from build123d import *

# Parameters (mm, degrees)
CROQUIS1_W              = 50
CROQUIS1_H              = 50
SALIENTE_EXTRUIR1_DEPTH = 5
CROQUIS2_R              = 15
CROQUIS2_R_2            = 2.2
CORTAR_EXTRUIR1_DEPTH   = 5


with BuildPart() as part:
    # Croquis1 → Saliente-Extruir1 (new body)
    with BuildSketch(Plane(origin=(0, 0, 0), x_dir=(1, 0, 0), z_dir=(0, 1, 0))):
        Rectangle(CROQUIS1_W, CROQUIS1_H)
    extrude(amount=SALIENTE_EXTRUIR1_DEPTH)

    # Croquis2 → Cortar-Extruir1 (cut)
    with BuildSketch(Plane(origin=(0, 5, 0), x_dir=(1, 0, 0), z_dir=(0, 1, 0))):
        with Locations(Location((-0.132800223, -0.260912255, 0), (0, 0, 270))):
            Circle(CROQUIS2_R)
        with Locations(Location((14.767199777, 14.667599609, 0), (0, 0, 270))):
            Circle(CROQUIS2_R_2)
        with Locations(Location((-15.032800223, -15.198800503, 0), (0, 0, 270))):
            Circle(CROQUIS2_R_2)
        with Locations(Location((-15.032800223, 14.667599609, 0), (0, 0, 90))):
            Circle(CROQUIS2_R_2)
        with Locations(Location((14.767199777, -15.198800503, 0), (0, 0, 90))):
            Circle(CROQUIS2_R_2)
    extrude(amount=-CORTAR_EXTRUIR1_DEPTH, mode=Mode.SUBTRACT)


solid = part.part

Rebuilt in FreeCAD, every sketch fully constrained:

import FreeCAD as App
import Part
import Sketcher
from FreeCAD import Vector

doc = App.newDocument("Part")
body = doc.addObject("PartDesign::Body", "Body")

sketch1 = body.newObject("Sketcher::SketchObject", "Sketch")
sketch1.AttachmentSupport = (doc.getObject("XZ_Plane"), [""])
sketch1.MapMode = "FlatFace"
sketch1.addGeometry([
    Part.LineSegment(Vector(-25, -25, 0), Vector(-25, 25, 0)),
    Part.LineSegment(Vector(-25, 25, 0), Vector(25, 25, 0)),
    Part.LineSegment(Vector(25, 25, 0), Vector(25, -25, 0)),
    Part.LineSegment(Vector(25, -25, 0), Vector(-25, -25, 0)),
], False)
sketch1.addConstraint([
    Sketcher.Constraint("Coincident", 0, 2, 1, 1),
    Sketcher.Constraint("Coincident", 1, 2, 2, 1),
    Sketcher.Constraint("Coincident", 2, 2, 3, 1),
    Sketcher.Constraint("Coincident", 3, 2, 0, 1),
    Sketcher.Constraint("Vertical", 0),
    Sketcher.Constraint("Horizontal", 1),
    Sketcher.Constraint("Vertical", 2),
    Sketcher.Constraint("Horizontal", 3),
    Sketcher.Constraint("Symmetric", 0, 2, 2, 2, -1, 1),
    Sketcher.Constraint("Equal", 3, 0),
    Sketcher.Constraint("DistanceX", 1, 1, 1, 2, 50.0),
])
pad1 = body.newObject("PartDesign::Pad", "Pad")
pad1.Profile = sketch1
pad1.Length = 5
pad1.Reversed = True

sketch2 = body.newObject("Sketcher::SketchObject", "Sketch001")
sketch2.AttachmentSupport = (doc.getObject("XZ_Plane"), [""])
sketch2.MapMode = "FlatFace"
sketch2.AttachmentOffset = App.Placement(Vector(0, 0, -5), App.Rotation())
sketch2.addGeometry([
    Part.Circle(Vector(-0.1, 0.3, 0), Vector(0, 0, 1), 15),
    Part.Circle(Vector(14.8, -14.7, 0), Vector(0, 0, 1), 2.2),
    Part.Circle(Vector(-15, 15.2, 0), Vector(0, 0, 1), 2.2),
    Part.Circle(Vector(-15, -14.7, 0), Vector(0, 0, 1), 2.2),
    Part.Circle(Vector(14.8, 15.2, 0), Vector(0, 0, 1), 2.2),
], False)
sketch2.addConstraint([
    Sketcher.Constraint("Equal", 1, 2),
    Sketcher.Constraint("Equal", 2, 3),
    Sketcher.Constraint("Equal", 3, 4),
    Sketcher.Constraint("Horizontal", 1, 3, 3, 3),
    Sketcher.Constraint("Horizontal", 2, 3, 4, 3),
    Sketcher.Constraint("Vertical", 2, 3, 3, 3),
    Sketcher.Constraint("Vertical", 1, 3, 4, 3),
    Sketcher.Constraint("Diameter", 0, 30.0),
    Sketcher.Constraint("Diameter", 1, 4.4),
    Sketcher.Constraint("DistanceX", 0, 3, 1, 3, 14.9),
    Sketcher.Constraint("DistanceX", 2, 3, 0, 3, 14.9),
    Sketcher.Constraint("DistanceX", 0, 3, -1, 1, 0.1328),
    Sketcher.Constraint("DistanceY", 1, 3, -1, 1, 14.6676),
    Sketcher.Constraint("DistanceY", -1, 1, 2, 3, 15.198801),
    Sketcher.Constraint("DistanceY", 1, 3, 0, 3, 14.928512),
])
pocket1 = body.newObject("PartDesign::Pocket", "Pocket")
pocket1.Profile = sketch2
pocket1.Length = 5
pocket1.Reversed = True

doc.recompute()
